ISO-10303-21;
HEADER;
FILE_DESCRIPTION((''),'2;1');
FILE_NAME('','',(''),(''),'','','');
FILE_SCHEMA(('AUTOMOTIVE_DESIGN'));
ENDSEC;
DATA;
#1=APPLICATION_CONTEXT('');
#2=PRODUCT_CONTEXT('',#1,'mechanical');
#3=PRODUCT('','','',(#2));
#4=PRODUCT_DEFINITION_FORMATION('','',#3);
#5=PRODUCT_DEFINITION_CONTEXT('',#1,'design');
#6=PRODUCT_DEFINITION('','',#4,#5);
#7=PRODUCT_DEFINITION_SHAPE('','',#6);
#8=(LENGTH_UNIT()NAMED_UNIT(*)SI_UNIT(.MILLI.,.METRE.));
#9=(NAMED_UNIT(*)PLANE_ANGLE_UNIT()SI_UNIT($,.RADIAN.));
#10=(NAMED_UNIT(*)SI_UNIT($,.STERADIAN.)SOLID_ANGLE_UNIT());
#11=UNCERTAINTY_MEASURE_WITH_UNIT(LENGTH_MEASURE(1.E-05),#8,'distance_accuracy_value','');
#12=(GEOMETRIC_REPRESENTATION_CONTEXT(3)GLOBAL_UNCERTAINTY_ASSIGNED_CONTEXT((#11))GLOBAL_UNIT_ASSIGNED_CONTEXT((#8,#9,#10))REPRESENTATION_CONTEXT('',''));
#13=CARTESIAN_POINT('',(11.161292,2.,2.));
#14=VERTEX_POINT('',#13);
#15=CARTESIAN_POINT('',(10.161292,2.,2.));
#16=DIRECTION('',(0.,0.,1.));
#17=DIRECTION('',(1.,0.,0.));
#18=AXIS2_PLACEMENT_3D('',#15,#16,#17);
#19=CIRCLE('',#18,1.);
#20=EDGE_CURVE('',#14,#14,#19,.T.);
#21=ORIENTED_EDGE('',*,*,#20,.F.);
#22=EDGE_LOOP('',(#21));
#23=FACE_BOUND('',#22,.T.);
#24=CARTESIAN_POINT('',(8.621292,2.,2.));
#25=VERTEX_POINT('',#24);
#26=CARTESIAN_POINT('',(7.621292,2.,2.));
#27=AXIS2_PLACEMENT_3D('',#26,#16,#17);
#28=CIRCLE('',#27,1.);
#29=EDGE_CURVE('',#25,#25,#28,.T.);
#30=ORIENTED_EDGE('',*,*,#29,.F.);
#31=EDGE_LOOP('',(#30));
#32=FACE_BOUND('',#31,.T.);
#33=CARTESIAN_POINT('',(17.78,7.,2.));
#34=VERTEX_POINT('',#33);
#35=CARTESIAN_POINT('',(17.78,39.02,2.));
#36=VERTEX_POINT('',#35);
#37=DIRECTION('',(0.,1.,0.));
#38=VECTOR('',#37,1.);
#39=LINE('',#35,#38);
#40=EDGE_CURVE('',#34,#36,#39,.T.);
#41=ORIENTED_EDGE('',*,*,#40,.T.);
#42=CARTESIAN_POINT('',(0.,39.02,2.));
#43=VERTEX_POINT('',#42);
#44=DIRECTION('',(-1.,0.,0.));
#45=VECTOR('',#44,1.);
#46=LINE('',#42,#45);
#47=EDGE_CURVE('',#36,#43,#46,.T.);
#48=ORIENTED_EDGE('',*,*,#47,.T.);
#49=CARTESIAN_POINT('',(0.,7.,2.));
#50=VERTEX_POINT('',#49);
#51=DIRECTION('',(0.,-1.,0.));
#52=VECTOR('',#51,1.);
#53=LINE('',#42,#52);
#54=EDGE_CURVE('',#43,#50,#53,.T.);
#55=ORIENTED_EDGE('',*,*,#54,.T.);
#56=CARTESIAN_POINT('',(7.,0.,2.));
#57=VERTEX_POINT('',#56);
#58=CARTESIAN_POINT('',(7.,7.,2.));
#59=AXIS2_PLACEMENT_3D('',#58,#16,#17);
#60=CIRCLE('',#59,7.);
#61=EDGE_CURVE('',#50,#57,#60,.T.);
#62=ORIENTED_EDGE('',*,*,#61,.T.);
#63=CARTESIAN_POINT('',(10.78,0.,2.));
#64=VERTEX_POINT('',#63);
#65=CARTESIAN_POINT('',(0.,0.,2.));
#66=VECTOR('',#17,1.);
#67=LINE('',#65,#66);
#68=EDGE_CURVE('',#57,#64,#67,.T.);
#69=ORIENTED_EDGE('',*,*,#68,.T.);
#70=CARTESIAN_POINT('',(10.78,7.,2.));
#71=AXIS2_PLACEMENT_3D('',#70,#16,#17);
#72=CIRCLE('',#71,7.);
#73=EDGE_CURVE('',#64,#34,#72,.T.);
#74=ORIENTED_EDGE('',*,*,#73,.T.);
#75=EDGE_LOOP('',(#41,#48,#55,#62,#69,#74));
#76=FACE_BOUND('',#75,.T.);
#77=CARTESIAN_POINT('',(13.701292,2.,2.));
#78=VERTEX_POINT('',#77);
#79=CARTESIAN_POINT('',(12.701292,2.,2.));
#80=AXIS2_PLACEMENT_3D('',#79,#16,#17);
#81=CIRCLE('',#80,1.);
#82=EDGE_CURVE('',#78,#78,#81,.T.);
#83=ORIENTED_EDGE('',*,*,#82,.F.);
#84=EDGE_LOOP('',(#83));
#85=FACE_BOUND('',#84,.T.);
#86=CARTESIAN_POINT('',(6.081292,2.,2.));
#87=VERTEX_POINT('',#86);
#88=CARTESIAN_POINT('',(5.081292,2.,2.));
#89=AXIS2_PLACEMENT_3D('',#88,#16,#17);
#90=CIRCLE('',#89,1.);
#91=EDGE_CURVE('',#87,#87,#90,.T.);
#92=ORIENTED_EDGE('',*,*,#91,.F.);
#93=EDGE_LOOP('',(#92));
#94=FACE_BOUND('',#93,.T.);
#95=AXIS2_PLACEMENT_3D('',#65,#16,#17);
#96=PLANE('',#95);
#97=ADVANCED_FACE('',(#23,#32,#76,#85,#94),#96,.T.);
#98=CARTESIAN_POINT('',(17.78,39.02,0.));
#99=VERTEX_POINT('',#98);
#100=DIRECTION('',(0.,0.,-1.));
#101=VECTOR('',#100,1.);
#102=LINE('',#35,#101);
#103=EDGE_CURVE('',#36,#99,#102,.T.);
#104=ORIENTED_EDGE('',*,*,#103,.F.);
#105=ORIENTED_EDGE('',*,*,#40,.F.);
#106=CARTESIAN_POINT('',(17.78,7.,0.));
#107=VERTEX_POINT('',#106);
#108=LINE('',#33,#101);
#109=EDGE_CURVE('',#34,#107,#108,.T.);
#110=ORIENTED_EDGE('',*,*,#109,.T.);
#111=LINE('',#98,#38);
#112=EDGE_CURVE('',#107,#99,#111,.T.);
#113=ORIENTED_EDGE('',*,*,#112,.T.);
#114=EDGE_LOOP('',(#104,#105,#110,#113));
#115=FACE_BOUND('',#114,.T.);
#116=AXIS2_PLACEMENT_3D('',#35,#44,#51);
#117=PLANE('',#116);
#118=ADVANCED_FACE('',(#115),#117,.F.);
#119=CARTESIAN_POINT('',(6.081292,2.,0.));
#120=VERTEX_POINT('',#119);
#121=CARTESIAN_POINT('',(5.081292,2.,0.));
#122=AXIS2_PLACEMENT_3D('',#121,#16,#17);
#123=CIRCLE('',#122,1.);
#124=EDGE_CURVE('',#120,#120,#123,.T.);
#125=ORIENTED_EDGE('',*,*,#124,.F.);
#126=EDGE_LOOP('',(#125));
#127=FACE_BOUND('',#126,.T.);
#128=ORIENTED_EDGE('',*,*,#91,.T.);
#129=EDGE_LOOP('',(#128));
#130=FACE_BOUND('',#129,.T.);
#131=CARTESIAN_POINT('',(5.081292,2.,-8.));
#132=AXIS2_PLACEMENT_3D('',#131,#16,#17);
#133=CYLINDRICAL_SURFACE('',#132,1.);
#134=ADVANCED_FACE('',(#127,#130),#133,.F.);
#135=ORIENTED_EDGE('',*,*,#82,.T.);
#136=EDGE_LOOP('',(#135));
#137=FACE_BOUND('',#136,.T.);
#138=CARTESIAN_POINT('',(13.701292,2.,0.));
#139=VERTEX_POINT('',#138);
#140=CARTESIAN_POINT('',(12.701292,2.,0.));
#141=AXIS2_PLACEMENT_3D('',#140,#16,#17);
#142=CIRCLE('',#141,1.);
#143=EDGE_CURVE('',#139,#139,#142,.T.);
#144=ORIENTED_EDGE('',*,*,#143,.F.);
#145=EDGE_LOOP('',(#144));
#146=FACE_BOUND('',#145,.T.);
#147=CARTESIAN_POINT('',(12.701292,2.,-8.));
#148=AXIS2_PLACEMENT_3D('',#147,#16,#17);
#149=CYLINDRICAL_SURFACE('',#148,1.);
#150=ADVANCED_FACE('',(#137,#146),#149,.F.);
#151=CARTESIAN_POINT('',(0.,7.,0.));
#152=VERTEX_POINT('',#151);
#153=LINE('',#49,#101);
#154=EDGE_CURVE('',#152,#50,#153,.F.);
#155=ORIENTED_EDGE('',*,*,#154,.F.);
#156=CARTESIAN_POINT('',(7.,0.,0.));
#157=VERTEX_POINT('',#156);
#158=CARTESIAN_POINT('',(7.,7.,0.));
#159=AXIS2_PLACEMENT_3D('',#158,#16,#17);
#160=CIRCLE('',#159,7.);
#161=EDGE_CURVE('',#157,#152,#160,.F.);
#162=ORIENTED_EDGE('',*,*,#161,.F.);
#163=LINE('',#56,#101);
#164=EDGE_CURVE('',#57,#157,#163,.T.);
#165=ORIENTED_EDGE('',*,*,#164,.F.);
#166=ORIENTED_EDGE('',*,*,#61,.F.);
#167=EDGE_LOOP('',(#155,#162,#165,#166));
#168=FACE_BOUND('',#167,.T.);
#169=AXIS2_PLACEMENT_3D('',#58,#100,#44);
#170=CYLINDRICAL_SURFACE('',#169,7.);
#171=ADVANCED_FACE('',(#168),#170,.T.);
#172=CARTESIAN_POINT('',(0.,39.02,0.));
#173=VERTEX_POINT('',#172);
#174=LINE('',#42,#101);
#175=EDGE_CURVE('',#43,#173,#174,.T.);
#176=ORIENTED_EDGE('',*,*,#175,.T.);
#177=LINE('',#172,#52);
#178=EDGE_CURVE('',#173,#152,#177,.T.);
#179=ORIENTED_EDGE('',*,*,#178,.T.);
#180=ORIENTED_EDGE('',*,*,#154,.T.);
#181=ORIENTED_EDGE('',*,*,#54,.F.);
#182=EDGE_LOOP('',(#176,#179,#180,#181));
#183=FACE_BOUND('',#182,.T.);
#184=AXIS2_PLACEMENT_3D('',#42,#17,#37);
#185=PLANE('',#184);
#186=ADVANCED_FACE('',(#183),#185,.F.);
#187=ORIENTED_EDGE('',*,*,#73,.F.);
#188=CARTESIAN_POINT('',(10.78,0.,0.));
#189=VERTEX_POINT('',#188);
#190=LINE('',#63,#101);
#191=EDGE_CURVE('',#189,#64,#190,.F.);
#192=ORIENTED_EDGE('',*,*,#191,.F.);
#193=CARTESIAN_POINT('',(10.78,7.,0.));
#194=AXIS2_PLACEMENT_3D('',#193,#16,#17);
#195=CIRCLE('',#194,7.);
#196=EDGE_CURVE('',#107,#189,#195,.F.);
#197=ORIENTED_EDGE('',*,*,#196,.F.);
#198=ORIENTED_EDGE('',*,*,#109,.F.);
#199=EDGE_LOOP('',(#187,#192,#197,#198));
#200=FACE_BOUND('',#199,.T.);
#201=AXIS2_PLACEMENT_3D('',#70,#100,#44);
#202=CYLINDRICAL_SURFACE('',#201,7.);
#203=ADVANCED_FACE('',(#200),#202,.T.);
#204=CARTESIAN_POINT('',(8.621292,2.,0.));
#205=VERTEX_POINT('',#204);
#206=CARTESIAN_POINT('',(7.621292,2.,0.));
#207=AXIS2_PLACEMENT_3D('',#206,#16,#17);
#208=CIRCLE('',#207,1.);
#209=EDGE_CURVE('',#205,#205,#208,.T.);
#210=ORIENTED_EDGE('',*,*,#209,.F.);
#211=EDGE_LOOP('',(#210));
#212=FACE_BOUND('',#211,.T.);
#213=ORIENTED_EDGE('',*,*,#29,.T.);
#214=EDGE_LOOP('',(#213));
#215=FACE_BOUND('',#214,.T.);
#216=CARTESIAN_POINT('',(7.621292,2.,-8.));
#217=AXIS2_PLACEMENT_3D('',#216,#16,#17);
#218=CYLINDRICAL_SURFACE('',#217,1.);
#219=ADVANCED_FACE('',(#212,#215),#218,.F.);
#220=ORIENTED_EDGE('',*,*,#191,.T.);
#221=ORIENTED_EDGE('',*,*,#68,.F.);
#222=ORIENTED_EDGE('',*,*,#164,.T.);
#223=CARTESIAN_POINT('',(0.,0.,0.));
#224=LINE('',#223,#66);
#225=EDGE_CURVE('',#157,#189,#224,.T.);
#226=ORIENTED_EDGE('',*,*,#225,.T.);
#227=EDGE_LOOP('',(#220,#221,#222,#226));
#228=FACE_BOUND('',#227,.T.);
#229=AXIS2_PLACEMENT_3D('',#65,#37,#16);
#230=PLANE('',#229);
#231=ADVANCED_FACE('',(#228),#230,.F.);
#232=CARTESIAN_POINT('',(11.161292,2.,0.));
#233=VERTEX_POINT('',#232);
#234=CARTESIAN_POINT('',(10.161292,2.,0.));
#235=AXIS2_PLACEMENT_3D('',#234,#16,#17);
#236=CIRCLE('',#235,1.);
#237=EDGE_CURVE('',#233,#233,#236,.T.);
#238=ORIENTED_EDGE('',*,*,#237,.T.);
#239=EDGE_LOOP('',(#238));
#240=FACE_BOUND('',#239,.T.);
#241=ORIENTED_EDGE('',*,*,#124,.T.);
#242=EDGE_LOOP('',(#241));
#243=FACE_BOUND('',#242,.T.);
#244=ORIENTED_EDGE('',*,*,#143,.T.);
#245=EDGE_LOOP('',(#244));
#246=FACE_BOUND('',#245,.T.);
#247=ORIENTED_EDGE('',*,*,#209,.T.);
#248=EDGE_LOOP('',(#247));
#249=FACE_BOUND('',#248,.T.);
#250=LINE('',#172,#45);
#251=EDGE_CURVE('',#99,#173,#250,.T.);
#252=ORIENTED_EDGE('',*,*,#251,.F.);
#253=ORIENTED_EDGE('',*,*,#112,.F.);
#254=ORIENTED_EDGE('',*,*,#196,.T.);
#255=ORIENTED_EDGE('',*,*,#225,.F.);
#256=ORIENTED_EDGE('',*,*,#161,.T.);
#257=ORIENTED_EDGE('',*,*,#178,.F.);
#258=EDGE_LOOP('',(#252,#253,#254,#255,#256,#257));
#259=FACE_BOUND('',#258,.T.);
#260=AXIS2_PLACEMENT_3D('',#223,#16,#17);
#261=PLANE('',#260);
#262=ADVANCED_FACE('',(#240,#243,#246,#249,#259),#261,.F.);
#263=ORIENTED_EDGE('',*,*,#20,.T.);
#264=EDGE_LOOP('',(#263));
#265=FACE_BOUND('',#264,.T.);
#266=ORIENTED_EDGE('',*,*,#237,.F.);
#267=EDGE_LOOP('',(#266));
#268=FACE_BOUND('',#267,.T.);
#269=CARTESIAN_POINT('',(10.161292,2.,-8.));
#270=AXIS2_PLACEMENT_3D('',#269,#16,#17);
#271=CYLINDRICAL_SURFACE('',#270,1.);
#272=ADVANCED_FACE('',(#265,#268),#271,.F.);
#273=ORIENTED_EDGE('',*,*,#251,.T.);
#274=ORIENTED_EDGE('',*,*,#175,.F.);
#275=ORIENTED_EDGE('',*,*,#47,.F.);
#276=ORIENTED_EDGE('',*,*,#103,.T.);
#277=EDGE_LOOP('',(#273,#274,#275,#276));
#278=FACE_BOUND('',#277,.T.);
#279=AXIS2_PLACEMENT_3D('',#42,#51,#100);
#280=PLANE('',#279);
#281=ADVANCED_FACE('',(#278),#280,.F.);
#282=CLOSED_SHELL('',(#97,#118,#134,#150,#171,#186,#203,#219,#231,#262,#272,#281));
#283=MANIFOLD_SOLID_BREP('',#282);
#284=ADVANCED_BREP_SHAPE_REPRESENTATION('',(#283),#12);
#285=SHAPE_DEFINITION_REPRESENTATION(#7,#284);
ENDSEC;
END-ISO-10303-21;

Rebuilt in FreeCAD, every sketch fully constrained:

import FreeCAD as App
import Part
import Sketcher

V = App.Vector
Q = App.Units.Quantity


def edges_at(feature, points):
    """Names of the edges that pass closest to the given points."""
    edges = feature.Shape.Edges
    near = lambda p: min(range(len(edges)), key=lambda i: edges[i].distToShape(Part.Vertex(*p))[0])
    return sorted({f"Edge{near(p) + 1}" for p in points})


def add_polygon(sketch, points):
    """Adds a closed chain of lines whose ends are joined by coincident constraints."""
    first, n = sketch.GeometryCount, len(points)
    for a, b in zip(points, points[1:] + points[:1]):
        sketch.addGeometry(Part.LineSegment(App.Vector(*a, 0), App.Vector(*b, 0)), False)
    for i in range(n):
        sketch.addConstraint(Sketcher.Constraint("Coincident", first + i, 2, first + (i + 1) % n, 1))

doc = App.newDocument("Part")
body = doc.addObject("PartDesign::Body", "Body")

# Sketch on XY plane
sketch1 = doc.addObject("Sketcher::SketchObject", "Sketch")
body.addObject(sketch1)
sketch1.AttachmentSupport = (doc.XY_Plane, [""])
sketch1.MapMode = "FlatFace"
add_polygon(sketch1, [(0, 39), (0, 0), (18, 0), (18, 39)])  # lines 0-3
sketch1.addConstraint(Sketcher.Constraint("Vertical", 0))
sketch1.addConstraint(Sketcher.Constraint("Horizontal", 1))
sketch1.addConstraint(Sketcher.Constraint("Vertical", 2))
sketch1.addConstraint(Sketcher.Constraint("Horizontal", 3))
sketch1.addConstraint(Sketcher.Constraint("Coincident", 0, 2, -1, 1))
sketch1.addConstraint(Sketcher.Constraint("DistanceX", 1, 1, 1, 2, Q("17.78 mm")))
sketch1.addConstraint(Sketcher.Constraint("DistanceY", 0, 2, 0, 1, Q("39.02 mm")))
pad1 = doc.addObject("PartDesign::Pad", "Pad")
body.addObject(pad1)
pad1.Profile = sketch1
pad1.Length = 2

# Sketch on XY plane
sketch2 = doc.addObject("Sketcher::SketchObject", "Sketch001")
body.addObject(sketch2)
sketch2.AttachmentSupport = (doc.XY_Plane, [""])
sketch2.MapMode = "FlatFace"
sketch2.AttachmentOffset = App.Placement(V(0, 0, 2), App.Rotation())
sketch2.addGeometry(Part.Circle(V(5.1, 2, 0), V(0, 0, 1), 1), False)
sketch2.addGeometry(Part.Circle(V(7.6, 2, 0), V(0, 0, 1), 1), False)
sketch2.addGeometry(Part.Circle(V(10.2, 2, 0), V(0, 0, 1), 1), False)
sketch2.addGeometry(Part.Circle(V(12.7, 2, 0), V(0, 0, 1), 1), False)
sketch2.addConstraint(Sketcher.Constraint("Equal", 0, 1))
sketch2.addConstraint(Sketcher.Constraint("Equal", 1, 2))
sketch2.addConstraint(Sketcher.Constraint("Equal", 2, 3))
sketch2.addConstraint(Sketcher.Constraint("Horizontal", 0, 3, 1, 3))
sketch2.addConstraint(Sketcher.Constraint("Horizontal", 1, 3, 2, 3))
sketch2.addConstraint(Sketcher.Constraint("Horizontal", 2, 3, 3, 3))
sketch2.addConstraint(Sketcher.Constraint("Diameter", 0, Q("2 mm")))
sketch2.addConstraint(Sketcher.Constraint("DistanceY", -1, 1, 0, 3, Q("2 mm")))
sketch2.addConstraint(Sketcher.Constraint("DistanceX", 0, 3, 1, 3, Q("2.54 mm")))
sketch2.addConstraint(Sketcher.Constraint("DistanceX", 1, 3, 2, 3, Q("2.54 mm")))
sketch2.addConstraint(Sketcher.Constraint("DistanceX", 2, 3, 3, 3, Q("2.54 mm")))
sketch2.addConstraint(Sketcher.Constraint("DistanceX", -1, 1, 0, 3, Q("5.081292 mm")))
pocket1 = doc.addObject("PartDesign::Pocket", "Pocket")
body.addObject(pocket1)
pocket1.Profile = sketch2
pocket1.Length = 10
doc.recompute()

fillet = doc.addObject("PartDesign::Fillet", "Fillet")
body.addObject(fillet)
fillet.Base = (pocket1, edges_at(pocket1, [(17.78, 0, 1), (0, 0, 1)]))
fillet.Radius = 7

doc.recompute()
